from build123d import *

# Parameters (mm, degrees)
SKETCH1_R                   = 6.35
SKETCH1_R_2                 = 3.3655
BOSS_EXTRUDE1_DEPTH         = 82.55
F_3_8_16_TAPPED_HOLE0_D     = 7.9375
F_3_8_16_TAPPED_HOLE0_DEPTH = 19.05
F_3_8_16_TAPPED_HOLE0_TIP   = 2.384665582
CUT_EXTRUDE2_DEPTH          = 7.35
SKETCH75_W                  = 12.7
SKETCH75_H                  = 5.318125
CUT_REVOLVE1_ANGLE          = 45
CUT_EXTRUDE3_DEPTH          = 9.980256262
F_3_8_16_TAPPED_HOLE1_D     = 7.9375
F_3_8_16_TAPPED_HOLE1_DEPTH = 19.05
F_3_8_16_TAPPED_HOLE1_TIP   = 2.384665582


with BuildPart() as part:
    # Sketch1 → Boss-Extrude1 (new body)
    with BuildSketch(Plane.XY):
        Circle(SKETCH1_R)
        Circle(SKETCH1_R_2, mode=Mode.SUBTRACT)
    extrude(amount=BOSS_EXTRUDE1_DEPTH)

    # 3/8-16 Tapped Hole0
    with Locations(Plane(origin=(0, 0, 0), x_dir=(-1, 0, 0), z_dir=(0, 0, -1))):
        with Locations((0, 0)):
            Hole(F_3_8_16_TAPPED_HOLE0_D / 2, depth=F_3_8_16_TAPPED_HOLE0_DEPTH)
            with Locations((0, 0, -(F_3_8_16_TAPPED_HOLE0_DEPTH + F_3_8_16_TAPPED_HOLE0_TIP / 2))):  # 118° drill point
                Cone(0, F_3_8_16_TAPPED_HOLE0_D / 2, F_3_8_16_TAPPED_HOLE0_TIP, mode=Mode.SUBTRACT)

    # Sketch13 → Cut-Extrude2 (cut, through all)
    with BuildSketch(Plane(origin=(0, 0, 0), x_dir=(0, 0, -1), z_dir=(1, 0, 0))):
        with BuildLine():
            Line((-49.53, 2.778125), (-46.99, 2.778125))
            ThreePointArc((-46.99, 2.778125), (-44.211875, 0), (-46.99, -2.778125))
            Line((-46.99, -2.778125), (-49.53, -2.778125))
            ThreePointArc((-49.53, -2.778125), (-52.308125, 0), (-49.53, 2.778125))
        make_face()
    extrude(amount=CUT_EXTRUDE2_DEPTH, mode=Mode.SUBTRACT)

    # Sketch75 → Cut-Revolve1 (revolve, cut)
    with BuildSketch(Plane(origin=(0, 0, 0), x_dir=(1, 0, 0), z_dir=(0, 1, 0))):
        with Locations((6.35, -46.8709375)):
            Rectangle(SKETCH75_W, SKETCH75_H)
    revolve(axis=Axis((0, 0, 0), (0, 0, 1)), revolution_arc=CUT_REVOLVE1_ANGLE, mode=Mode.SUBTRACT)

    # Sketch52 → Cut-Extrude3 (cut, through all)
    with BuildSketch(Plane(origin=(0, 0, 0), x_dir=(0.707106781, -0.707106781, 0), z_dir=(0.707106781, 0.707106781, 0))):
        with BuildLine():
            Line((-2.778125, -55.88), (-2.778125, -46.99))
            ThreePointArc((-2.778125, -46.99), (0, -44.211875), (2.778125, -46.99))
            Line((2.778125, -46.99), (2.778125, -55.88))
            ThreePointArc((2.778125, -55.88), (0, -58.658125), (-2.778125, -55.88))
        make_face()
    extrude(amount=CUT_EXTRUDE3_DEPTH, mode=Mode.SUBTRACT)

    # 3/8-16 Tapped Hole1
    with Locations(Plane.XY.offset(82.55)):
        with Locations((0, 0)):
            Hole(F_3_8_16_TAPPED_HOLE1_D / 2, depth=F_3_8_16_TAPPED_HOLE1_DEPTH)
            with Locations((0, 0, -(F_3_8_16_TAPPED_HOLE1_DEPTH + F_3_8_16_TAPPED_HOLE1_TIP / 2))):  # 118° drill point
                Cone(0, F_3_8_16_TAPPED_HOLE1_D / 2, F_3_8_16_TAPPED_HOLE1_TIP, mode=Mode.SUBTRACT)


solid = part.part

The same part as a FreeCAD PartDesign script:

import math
import FreeCAD as App
import Part
import Sketcher

V = App.Vector
Q = App.Units.Quantity


def add_polygon(sketch, points):
    """Adds a closed chain of lines whose ends are joined by coincident constraints."""
    first, n = sketch.GeometryCount, len(points)
    for a, b in zip(points, points[1:] + points[:1]):
        sketch.addGeometry(Part.LineSegment(App.Vector(*a, 0), App.Vector(*b, 0)), False)
    for i in range(n):
        sketch.addConstraint(Sketcher.Constraint("Coincident", first + i, 2, first + (i + 1) % n, 1))

doc = App.newDocument("Part")
body = doc.addObject("PartDesign::Body", "Body")

# Sketch on XY plane
sketch1 = body.newObject("Sketcher::SketchObject", "Sketch")
sketch1.AttachmentSupport = (doc.getObject("XY_Plane"), [""])
sketch1.MapMode = "FlatFace"
sketch1.addGeometry([
    Part.Circle(V(0, 0, 0), V(0, 0, 1), 6.35),
    Part.Circle(V(0, 0, 0), V(0, 0, 1), 3.3655),
], False)
sketch1.addConstraint([
    Sketcher.Constraint("Coincident", 0, 3, -1, 1),
    Sketcher.Constraint("Coincident", 1, 3, -1, 1),
    Sketcher.Constraint("Diameter", 0, Q("0.5 in")),
    Sketcher.Constraint("Diameter", 1, Q("0.265 in")),
])
pad1 = body.newObject("PartDesign::Pad", "Pad")
pad1.Profile = sketch1
pad1.Length = Q("3.25 in")

# Sketch on XY plane
sketch2 = body.newObject("Sketcher::SketchObject", "Sketch001")
sketch2.AttachmentSupport = (doc.getObject("XY_Plane"), [""])
sketch2.MapMode = "FlatFace"
sketch2.addGeometry(Part.Circle(V(0, 0, 0), V(0, 0, 1), 3.96875), False)
sketch2.addConstraint([
    Sketcher.Constraint("Coincident", 0, 3, -1, 1),
    Sketcher.Constraint("Diameter", 0, Q("0.3125 in")),
])
doc.recompute()
hole = body.newObject("PartDesign::Hole", "Hole")
hole.Profile = sketch2
hole.ThreadType = "None"
hole.Diameter = Q("0.3125 in")
hole.DepthType = "Dimension"
hole.Depth = Q("0.75 in")
hole.DrillPoint = "Angled"
hole.DrillPointAngle = 118
hole.Reversed = True

# Sketch on YZ plane
sketch3 = body.newObject("Sketcher::SketchObject", "Sketch002")
sketch3.AttachmentSupport = (doc.getObject("YZ_Plane"), [""])
sketch3.MapMode = "FlatFace"
sketch3.addGeometry([
    Part.LineSegment(V(2.778125, 46.99, 0), V(2.778125, 49.53, 0)),
    Part.ArcOfCircle(Part.Circle(V(0, 49.53, 0), V(0, 0, 1), 2.778125), math.radians(0), math.radians(180)),
    Part.LineSegment(V(-2.778125, 49.53, 0), V(-2.778125, 46.99, 0)),
    Part.ArcOfCircle(Part.Circle(V(0, 46.99, 0), V(0, 0, 1), 2.778125), math.radians(180), math.radians(360)),
], False)
sketch3.addConstraint([
    Sketcher.Constraint("Tangent", 0, 2, 1, 1),
    Sketcher.Constraint("Tangent", 1, 2, 2, 1),
    Sketcher.Constraint("Tangent", 2, 2, 3, 1),
    Sketcher.Constraint("Tangent", 3, 2, 0, 1),
    Sketcher.Constraint("Vertical", 0),
    Sketcher.Constraint("Vertical", 2),
    Sketcher.Constraint("PointOnObject", 1, 3, -2),
    Sketcher.Constraint("DistanceY", 0, 1, 0, 2, Q("0.1 in")),
    Sketcher.Constraint("Radius", 1, Q("0.109375 in")),
    Sketcher.Constraint("DistanceY", -1, 1, 1, 3, Q("1.95 in")),
])
pocket1 = body.newObject("PartDesign::Pocket", "Pocket")
pocket1.Profile = sketch3
pocket1.Type = "ThroughAll"
pocket1.Reversed = True

# Sketch on XZ plane
sketch4 = body.newObject("Sketcher::SketchObject", "Sketch003")
sketch4.AttachmentSupport = (doc.getObject("XZ_Plane"), [""])
sketch4.MapMode = "FlatFace"
add_polygon(sketch4, [(0, 44.211875), (0, 49.53), (12.7, 49.53), (12.7, 44.211875)])  # lines 0-3
sketch4.addConstraint([
    Sketcher.Constraint("Vertical", 0),
    Sketcher.Constraint("Horizontal", 1),
    Sketcher.Constraint("Vertical", 2),
    Sketcher.Constraint("Horizontal", 3),
    Sketcher.Constraint("PointOnObject", 0, 2, -2),
    Sketcher.Constraint("DistanceX", 1, 1, 1, 2, Q("0.5 in")),
    Sketcher.Constraint("DistanceY", -1, 1, 0, 2, Q("1.95 in")),
    Sketcher.Constraint("DistanceY", 0, 1, 0, 2, 5.318125),
])
groove = body.newObject("PartDesign::Groove", "Groove")
groove.Profile = sketch4
groove.ReferenceAxis = (sketch4, ["V_Axis"])
groove.Angle = 45

# Sketch on an angled plane
sketch5 = body.newObject("Sketcher::SketchObject", "Sketch004")
sketch5.Placement = App.Placement(V(0, 0, 0), App.Rotation(V(0.707106781, -0.707106781, 0), V(0, 0, -0.999999999), V(0.707106781, 0.707106781, 0), "ZXY"))
sketch5.addGeometry([
    Part.LineSegment(V(-2.778125, -46.99, 0), V(-2.778125, -55.88, 0)),
    Part.ArcOfCircle(Part.Circle(V(0, -55.88, 0), V(0, 0, 1), 2.778125), math.radians(180), math.radians(360)),
    Part.LineSegment(V(2.778125, -55.88, 0), V(2.778125, -46.99, 0)),
    Part.ArcOfCircle(Part.Circle(V(0, -46.99, 0), V(0, 0, 1), 2.778125), math.radians(0), math.radians(180)),
], False)
sketch5.addConstraint([
    Sketcher.Constraint("Tangent", 0, 2, 1, 1),
    Sketcher.Constraint("Tangent", 1, 2, 2, 1),
    Sketcher.Constraint("Tangent", 2, 2, 3, 1),
    Sketcher.Constraint("Tangent", 3, 2, 0, 1),
    Sketcher.Constraint("Vertical", 0),
    Sketcher.Constraint("Vertical", 2),
    Sketcher.Constraint("PointOnObject", 1, 3, -2),
    Sketcher.Constraint("Radius", 1, Q("0.109375 in")),
    Sketcher.Constraint("DistanceY", 0, 2, 0, 1, Q("0.35 in")),
    Sketcher.Constraint("DistanceY", 1, 3, -1, 1, Q("2.2 in")),
])
pocket2 = body.newObject("PartDesign::Pocket", "Pocket001")
pocket2.Profile = sketch5
pocket2.Type = "ThroughAll"
pocket2.Reversed = True

# Sketch on XY plane
sketch6 = body.newObject("Sketcher::SketchObject", "Sketch005")
sketch6.AttachmentSupport = (doc.getObject("XY_Plane"), [""])
sketch6.MapMode = "FlatFace"
sketch6.AttachmentOffset = App.Placement(V(0, 0, 3.25 * 25.4), App.Rotation())
sketch6.addGeometry(Part.Circle(V(0, 0, 0), V(0, 0, 1), 3.96875), False)
sketch6.addConstraint([
    Sketcher.Constraint("Coincident", 0, 3, -1, 1),
    Sketcher.Constraint("Diameter", 0, Q("0.3125 in")),
])
doc.recompute()
hole2 = body.newObject("PartDesign::Hole", "Hole001")
hole2.Profile = sketch6
hole2.ThreadType = "None"
hole2.Diameter = Q("0.3125 in")
hole2.DepthType = "Dimension"
hole2.Depth = Q("0.75 in")
hole2.DrillPoint = "Angled"
hole2.DrillPointAngle = 118

doc.recompute()
